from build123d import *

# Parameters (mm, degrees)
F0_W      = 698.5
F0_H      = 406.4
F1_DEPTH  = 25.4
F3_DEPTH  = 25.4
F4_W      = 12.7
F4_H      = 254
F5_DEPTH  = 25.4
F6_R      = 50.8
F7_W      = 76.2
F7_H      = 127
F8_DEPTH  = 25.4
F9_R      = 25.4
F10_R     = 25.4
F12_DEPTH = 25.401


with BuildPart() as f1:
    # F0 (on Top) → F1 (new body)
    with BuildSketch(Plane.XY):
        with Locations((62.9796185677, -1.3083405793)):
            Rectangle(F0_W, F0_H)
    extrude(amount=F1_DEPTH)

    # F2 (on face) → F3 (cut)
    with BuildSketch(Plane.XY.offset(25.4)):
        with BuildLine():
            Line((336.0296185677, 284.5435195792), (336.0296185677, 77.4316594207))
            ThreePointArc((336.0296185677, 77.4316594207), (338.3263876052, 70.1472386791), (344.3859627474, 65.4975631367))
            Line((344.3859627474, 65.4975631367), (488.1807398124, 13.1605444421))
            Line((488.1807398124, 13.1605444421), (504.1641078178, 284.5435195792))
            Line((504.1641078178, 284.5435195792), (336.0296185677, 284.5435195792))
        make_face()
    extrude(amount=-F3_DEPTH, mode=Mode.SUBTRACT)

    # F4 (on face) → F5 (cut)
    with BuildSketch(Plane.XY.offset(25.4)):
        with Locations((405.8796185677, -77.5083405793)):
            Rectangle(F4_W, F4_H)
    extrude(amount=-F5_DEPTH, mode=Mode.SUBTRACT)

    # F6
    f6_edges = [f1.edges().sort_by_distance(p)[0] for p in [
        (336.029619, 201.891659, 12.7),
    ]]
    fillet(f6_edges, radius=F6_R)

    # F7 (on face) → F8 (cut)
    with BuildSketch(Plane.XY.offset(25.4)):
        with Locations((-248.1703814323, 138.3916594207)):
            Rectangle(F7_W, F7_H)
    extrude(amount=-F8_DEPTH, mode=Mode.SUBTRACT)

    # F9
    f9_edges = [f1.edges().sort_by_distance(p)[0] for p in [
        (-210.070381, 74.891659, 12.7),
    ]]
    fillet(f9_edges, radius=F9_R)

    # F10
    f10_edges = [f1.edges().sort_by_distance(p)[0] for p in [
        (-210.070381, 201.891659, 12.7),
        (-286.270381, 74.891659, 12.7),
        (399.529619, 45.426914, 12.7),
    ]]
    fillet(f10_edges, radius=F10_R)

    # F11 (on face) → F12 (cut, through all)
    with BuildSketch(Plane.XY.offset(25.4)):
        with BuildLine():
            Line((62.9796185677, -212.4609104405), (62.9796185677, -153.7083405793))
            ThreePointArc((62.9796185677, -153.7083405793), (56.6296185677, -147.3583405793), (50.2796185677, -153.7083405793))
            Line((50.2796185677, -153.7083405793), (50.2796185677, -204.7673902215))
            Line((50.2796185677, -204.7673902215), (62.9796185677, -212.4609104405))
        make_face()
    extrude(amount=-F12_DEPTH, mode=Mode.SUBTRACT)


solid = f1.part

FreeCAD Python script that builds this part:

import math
import FreeCAD as App
import Part
import Sketcher

V = App.Vector
Q = App.Units.Quantity


def edges_at(feature, points):
    """Names of the edges that pass closest to the given points."""
    edges = feature.Shape.Edges
    near = lambda p: min(range(len(edges)), key=lambda i: edges[i].distToShape(Part.Vertex(*p))[0])
    return sorted({f"Edge{near(p) + 1}" for p in points})

doc = App.newDocument("Part")
body = doc.addObject("PartDesign::Body", "Body")

# Sketch on XY plane
sketch1 = body.newObject("Sketcher::SketchObject", "Sketch")
sketch1.AttachmentSupport = (doc.getObject("XY_Plane"), [""])
sketch1.MapMode = "FlatFace"
sketch1.addGeometry([
    Part.LineSegment(V(-286.270381, 201.891659, 0), V(-286.270381, -204.508341, 0)),
    Part.LineSegment(V(-286.270381, -204.508341, 0), V(412.229619, -204.508341, 0)),
    Part.LineSegment(V(412.229619, -204.508341, 0), V(412.229619, 201.891659, 0)),
    Part.LineSegment(V(412.229619, 201.891659, 0), V(-286.270381, 201.891659, 0)),
], False)
sketch1.addConstraint([
    Sketcher.Constraint("Coincident", 0, 2, 1, 1),
    Sketcher.Constraint("Coincident", 1, 2, 2, 1),
    Sketcher.Constraint("Coincident", 2, 2, 3, 1),
    Sketcher.Constraint("Coincident", 3, 2, 0, 1),
    Sketcher.Constraint("Vertical", 0),
    Sketcher.Constraint("Horizontal", 1),
    Sketcher.Constraint("Vertical", 2),
    Sketcher.Constraint("Horizontal", 3),
    Sketcher.Constraint("DistanceY", 0, 2, 0, 1, Q("16 in")),
    Sketcher.Constraint("DistanceX", 1, 1, 1, 2, Q("27.5 in")),
    Sketcher.Constraint("DistanceX", 0, 2, -1, 1, Q("286.270381 mm")),
    Sketcher.Constraint("DistanceY", 0, 2, -1, 1, Q("204.508341 mm")),
])
pad1 = body.newObject("PartDesign::Pad", "Pad")
pad1.Profile = sketch1
pad1.Length = Q("1 in")

# Sketch on XY plane
sketch2 = body.newObject("Sketcher::SketchObject", "Sketch001")
sketch2.AttachmentSupport = (doc.getObject("XY_Plane"), [""])
sketch2.MapMode = "FlatFace"
sketch2.AttachmentOffset = App.Placement(V(0, 0, 1 * 25.4), App.Rotation())
sketch2.addGeometry([
    Part.LineSegment(V(336.029619, 284.54352, 0), V(336.029619, 77.431659, 0)),  # 0
    Part.ArcOfCircle(Part.Circle(V(348.729619, 77.431659, 0), V(0, 0, 1), 12.7), math.radians(180), math.radians(250)),  # 1
    Part.LineSegment(V(344.385963, 65.497563, 0), V(488.18074, 13.160544, 0)),  # 2
    Part.LineSegment(V(488.18074, 13.160544, 0), V(504.164108, 284.54352, 0)),  # 3
    Part.LineSegment(V(504.164108, 284.54352, 0), V(336.029619, 284.54352, 0)),  # 4
], False)
sketch2.addConstraint([
    Sketcher.Constraint("Tangent", 0, 2, 1, 1),
    Sketcher.Constraint("Tangent", 1, 2, 2, 1),
    Sketcher.Constraint("Coincident", 2, 2, 3, 1),
    Sketcher.Constraint("Coincident", 3, 2, 4, 1),
    Sketcher.Constraint("Coincident", 4, 2, 0, 1),
    Sketcher.Constraint("Vertical", 0),
    Sketcher.Constraint("Horizontal", 4),
    Sketcher.Constraint("Radius", 1, Q("0.5 in")),
    Sketcher.Constraint("Angle", 2, Q("-20 deg")),
    Sketcher.Constraint("DistanceX", 4, 2, 4, 1, Q("168.134489 mm")),
    Sketcher.Constraint("DistanceY", 0, 2, 0, 1, Q("207.11186 mm")),
    Sketcher.Constraint("DistanceX", -1, 1, 1, 3, Q("348.729619 mm")),
    Sketcher.Constraint("DistanceY", -1, 1, 1, 3, Q("77.431659 mm")),
    Sketcher.Constraint("DistanceX", -1, 1, 2, 2, Q("488.18074 mm")),
])
pocket1 = body.newObject("PartDesign::Pocket", "Pocket")
pocket1.Profile = sketch2
pocket1.Length = Q("1 in")

# Sketch on XY plane
sketch3 = body.newObject("Sketcher::SketchObject", "Sketch002")
sketch3.AttachmentSupport = (doc.getObject("XY_Plane"), [""])
sketch3.MapMode = "FlatFace"
sketch3.AttachmentOffset = App.Placement(V(0, 0, 1 * 25.4), App.Rotation())
sketch3.addGeometry([
    Part.LineSegment(V(399.529619, 49.491659, 0), V(399.529619, -204.508341, 0)),
    Part.LineSegment(V(399.529619, -204.508341, 0), V(412.229619, -204.508341, 0)),
    Part.LineSegment(V(412.229619, -204.508341, 0), V(412.229619, 49.491659, 0)),
    Part.LineSegment(V(412.229619, 49.491659, 0), V(399.529619, 49.491659, 0)),
], False)
sketch3.addConstraint([
    Sketcher.Constraint("Coincident", 0, 2, 1, 1),
    Sketcher.Constraint("Coincident", 1, 2, 2, 1),
    Sketcher.Constraint("Coincident", 2, 2, 3, 1),
    Sketcher.Constraint("Coincident", 3, 2, 0, 1),
    Sketcher.Constraint("Vertical", 0),
    Sketcher.Constraint("Horizontal", 1),
    Sketcher.Constraint("Vertical", 2),
    Sketcher.Constraint("Horizontal", 3),
    Sketcher.Constraint("DistanceY", 0, 2, 0, 1, Q("10 in")),
    Sketcher.Constraint("DistanceX", 1, 1, 1, 2, Q("0.5 in")),
    Sketcher.Constraint("DistanceX", -1, 1, 0, 2, Q("399.529619 mm")),
    Sketcher.Constraint("DistanceY", 0, 2, -1, 1, Q("204.508341 mm")),
])
pocket2 = body.newObject("PartDesign::Pocket", "Pocket001")
pocket2.Profile = sketch3
pocket2.Length = Q("1 in")
doc.recompute()

fillet = body.newObject("PartDesign::Fillet", "Fillet")
fillet.Base = (pocket2, edges_at(pocket2, [(336.03, 201.892, 12.7)]))
fillet.Radius = Q("2 in")

# Sketch on XY plane
sketch4 = body.newObject("Sketcher::SketchObject", "Sketch003")
sketch4.AttachmentSupport = (doc.getObject("XY_Plane"), [""])
sketch4.MapMode = "FlatFace"
sketch4.AttachmentOffset = App.Placement(V(0, 0, 1 * 25.4), App.Rotation())
sketch4.addGeometry([
    Part.LineSegment(V(-286.270381, 201.891659, 0), V(-286.270381, 74.891659, 0)),
    Part.LineSegment(V(-286.270381, 74.891659, 0), V(-210.070381, 74.891659, 0)),
    Part.LineSegment(V(-210.070381, 74.891659, 0), V(-210.070381, 201.891659, 0)),
    Part.LineSegment(V(-210.070381, 201.891659, 0), V(-286.270381, 201.891659, 0)),
], False)
sketch4.addConstraint([
    Sketcher.Constraint("Coincident", 0, 2, 1, 1),
    Sketcher.Constraint("Coincident", 1, 2, 2, 1),
    Sketcher.Constraint("Coincident", 2, 2, 3, 1),
    Sketcher.Constraint("Coincident", 3, 2, 0, 1),
    Sketcher.Constraint("Vertical", 0),
    Sketcher.Constraint("Horizontal", 1),
    Sketcher.Constraint("Vertical", 2),
    Sketcher.Constraint("Horizontal", 3),
    Sketcher.Constraint("DistanceX", 1, 1, 1, 2, Q("3 in")),
    Sketcher.Constraint("DistanceY", 0, 2, 0, 1, Q("5 in")),
    Sketcher.Constraint("DistanceX", 0, 2, -1, 1, Q("286.270381 mm")),
    Sketcher.Constraint("DistanceY", -1, 1, 0, 2, Q("74.891659 mm")),
])
pocket3 = body.newObject("PartDesign::Pocket", "Pocket002")
pocket3.Profile = sketch4
pocket3.Length = Q("1 in")
doc.recompute()

fillet2 = body.newObject("PartDesign::Fillet", "Fillet001")
fillet2.Base = (pocket3, edges_at(pocket3, [(-210.07, 74.892, 12.7)]))
fillet2.Radius = Q("1 in")
doc.recompute()

fillet3 = body.newObject("PartDesign::Fillet", "Fillet002")
fillet3.Base = (fillet2, edges_at(fillet2, [(-210.07, 201.892, 12.7), (-286.27, 74.892, 12.7), (399.53, 45.427, 12.7)]))
fillet3.Radius = Q("1 in")

# Sketch on XY plane
sketch5 = body.newObject("Sketcher::SketchObject", "Sketch004")
sketch5.AttachmentSupport = (doc.getObject("XY_Plane"), [""])
sketch5.MapMode = "FlatFace"
sketch5.AttachmentOffset = App.Placement(V(0, 0, 1 * 25.4), App.Rotation())
sketch5.addGeometry([
    Part.LineSegment(V(62.979619, -212.46091, 0), V(62.979619, -153.708341, 0)),
    Part.ArcOfCircle(Part.Circle(V(56.629619, -153.708341, 0), V(0, 0, 1), 6.35), math.radians(0), math.radians(180)),
    Part.LineSegment(V(50.279619, -153.708341, 0), V(50.279619, -204.76739, 0)),
    Part.LineSegment(V(50.279619, -204.76739, 0), V(62.979619, -212.46091, 0)),
], False)
sketch5.addConstraint([
    Sketcher.Constraint("Tangent", 0, 2, 1, 1),
    Sketcher.Constraint("Tangent", 1, 2, 2, 1),
    Sketcher.Constraint("Coincident", 2, 2, 3, 1),
    Sketcher.Constraint("Coincident", 3, 2, 0, 1),
    Sketcher.Constraint("Vertical", 0),
    Sketcher.Constraint("Vertical", 2),
    Sketcher.Constraint("Radius", 1, Q("0.25 in")),
    Sketcher.Constraint("DistanceY", 0, 1, 0, 2, Q("58.75257 mm")),
    Sketcher.Constraint("DistanceY", 2, 2, 2, 1, Q("51.05905 mm")),
    Sketcher.Constraint("DistanceX", -1, 1, 1, 3, Q("56.629619 mm")),
    Sketcher.Constraint("DistanceY", 1, 3, -1, 1, Q("153.708341 mm")),
])
pocket4 = body.newObject("PartDesign::Pocket", "Pocket003")
pocket4.Profile = sketch5
pocket4.Type = "ThroughAll"

doc.recompute()
